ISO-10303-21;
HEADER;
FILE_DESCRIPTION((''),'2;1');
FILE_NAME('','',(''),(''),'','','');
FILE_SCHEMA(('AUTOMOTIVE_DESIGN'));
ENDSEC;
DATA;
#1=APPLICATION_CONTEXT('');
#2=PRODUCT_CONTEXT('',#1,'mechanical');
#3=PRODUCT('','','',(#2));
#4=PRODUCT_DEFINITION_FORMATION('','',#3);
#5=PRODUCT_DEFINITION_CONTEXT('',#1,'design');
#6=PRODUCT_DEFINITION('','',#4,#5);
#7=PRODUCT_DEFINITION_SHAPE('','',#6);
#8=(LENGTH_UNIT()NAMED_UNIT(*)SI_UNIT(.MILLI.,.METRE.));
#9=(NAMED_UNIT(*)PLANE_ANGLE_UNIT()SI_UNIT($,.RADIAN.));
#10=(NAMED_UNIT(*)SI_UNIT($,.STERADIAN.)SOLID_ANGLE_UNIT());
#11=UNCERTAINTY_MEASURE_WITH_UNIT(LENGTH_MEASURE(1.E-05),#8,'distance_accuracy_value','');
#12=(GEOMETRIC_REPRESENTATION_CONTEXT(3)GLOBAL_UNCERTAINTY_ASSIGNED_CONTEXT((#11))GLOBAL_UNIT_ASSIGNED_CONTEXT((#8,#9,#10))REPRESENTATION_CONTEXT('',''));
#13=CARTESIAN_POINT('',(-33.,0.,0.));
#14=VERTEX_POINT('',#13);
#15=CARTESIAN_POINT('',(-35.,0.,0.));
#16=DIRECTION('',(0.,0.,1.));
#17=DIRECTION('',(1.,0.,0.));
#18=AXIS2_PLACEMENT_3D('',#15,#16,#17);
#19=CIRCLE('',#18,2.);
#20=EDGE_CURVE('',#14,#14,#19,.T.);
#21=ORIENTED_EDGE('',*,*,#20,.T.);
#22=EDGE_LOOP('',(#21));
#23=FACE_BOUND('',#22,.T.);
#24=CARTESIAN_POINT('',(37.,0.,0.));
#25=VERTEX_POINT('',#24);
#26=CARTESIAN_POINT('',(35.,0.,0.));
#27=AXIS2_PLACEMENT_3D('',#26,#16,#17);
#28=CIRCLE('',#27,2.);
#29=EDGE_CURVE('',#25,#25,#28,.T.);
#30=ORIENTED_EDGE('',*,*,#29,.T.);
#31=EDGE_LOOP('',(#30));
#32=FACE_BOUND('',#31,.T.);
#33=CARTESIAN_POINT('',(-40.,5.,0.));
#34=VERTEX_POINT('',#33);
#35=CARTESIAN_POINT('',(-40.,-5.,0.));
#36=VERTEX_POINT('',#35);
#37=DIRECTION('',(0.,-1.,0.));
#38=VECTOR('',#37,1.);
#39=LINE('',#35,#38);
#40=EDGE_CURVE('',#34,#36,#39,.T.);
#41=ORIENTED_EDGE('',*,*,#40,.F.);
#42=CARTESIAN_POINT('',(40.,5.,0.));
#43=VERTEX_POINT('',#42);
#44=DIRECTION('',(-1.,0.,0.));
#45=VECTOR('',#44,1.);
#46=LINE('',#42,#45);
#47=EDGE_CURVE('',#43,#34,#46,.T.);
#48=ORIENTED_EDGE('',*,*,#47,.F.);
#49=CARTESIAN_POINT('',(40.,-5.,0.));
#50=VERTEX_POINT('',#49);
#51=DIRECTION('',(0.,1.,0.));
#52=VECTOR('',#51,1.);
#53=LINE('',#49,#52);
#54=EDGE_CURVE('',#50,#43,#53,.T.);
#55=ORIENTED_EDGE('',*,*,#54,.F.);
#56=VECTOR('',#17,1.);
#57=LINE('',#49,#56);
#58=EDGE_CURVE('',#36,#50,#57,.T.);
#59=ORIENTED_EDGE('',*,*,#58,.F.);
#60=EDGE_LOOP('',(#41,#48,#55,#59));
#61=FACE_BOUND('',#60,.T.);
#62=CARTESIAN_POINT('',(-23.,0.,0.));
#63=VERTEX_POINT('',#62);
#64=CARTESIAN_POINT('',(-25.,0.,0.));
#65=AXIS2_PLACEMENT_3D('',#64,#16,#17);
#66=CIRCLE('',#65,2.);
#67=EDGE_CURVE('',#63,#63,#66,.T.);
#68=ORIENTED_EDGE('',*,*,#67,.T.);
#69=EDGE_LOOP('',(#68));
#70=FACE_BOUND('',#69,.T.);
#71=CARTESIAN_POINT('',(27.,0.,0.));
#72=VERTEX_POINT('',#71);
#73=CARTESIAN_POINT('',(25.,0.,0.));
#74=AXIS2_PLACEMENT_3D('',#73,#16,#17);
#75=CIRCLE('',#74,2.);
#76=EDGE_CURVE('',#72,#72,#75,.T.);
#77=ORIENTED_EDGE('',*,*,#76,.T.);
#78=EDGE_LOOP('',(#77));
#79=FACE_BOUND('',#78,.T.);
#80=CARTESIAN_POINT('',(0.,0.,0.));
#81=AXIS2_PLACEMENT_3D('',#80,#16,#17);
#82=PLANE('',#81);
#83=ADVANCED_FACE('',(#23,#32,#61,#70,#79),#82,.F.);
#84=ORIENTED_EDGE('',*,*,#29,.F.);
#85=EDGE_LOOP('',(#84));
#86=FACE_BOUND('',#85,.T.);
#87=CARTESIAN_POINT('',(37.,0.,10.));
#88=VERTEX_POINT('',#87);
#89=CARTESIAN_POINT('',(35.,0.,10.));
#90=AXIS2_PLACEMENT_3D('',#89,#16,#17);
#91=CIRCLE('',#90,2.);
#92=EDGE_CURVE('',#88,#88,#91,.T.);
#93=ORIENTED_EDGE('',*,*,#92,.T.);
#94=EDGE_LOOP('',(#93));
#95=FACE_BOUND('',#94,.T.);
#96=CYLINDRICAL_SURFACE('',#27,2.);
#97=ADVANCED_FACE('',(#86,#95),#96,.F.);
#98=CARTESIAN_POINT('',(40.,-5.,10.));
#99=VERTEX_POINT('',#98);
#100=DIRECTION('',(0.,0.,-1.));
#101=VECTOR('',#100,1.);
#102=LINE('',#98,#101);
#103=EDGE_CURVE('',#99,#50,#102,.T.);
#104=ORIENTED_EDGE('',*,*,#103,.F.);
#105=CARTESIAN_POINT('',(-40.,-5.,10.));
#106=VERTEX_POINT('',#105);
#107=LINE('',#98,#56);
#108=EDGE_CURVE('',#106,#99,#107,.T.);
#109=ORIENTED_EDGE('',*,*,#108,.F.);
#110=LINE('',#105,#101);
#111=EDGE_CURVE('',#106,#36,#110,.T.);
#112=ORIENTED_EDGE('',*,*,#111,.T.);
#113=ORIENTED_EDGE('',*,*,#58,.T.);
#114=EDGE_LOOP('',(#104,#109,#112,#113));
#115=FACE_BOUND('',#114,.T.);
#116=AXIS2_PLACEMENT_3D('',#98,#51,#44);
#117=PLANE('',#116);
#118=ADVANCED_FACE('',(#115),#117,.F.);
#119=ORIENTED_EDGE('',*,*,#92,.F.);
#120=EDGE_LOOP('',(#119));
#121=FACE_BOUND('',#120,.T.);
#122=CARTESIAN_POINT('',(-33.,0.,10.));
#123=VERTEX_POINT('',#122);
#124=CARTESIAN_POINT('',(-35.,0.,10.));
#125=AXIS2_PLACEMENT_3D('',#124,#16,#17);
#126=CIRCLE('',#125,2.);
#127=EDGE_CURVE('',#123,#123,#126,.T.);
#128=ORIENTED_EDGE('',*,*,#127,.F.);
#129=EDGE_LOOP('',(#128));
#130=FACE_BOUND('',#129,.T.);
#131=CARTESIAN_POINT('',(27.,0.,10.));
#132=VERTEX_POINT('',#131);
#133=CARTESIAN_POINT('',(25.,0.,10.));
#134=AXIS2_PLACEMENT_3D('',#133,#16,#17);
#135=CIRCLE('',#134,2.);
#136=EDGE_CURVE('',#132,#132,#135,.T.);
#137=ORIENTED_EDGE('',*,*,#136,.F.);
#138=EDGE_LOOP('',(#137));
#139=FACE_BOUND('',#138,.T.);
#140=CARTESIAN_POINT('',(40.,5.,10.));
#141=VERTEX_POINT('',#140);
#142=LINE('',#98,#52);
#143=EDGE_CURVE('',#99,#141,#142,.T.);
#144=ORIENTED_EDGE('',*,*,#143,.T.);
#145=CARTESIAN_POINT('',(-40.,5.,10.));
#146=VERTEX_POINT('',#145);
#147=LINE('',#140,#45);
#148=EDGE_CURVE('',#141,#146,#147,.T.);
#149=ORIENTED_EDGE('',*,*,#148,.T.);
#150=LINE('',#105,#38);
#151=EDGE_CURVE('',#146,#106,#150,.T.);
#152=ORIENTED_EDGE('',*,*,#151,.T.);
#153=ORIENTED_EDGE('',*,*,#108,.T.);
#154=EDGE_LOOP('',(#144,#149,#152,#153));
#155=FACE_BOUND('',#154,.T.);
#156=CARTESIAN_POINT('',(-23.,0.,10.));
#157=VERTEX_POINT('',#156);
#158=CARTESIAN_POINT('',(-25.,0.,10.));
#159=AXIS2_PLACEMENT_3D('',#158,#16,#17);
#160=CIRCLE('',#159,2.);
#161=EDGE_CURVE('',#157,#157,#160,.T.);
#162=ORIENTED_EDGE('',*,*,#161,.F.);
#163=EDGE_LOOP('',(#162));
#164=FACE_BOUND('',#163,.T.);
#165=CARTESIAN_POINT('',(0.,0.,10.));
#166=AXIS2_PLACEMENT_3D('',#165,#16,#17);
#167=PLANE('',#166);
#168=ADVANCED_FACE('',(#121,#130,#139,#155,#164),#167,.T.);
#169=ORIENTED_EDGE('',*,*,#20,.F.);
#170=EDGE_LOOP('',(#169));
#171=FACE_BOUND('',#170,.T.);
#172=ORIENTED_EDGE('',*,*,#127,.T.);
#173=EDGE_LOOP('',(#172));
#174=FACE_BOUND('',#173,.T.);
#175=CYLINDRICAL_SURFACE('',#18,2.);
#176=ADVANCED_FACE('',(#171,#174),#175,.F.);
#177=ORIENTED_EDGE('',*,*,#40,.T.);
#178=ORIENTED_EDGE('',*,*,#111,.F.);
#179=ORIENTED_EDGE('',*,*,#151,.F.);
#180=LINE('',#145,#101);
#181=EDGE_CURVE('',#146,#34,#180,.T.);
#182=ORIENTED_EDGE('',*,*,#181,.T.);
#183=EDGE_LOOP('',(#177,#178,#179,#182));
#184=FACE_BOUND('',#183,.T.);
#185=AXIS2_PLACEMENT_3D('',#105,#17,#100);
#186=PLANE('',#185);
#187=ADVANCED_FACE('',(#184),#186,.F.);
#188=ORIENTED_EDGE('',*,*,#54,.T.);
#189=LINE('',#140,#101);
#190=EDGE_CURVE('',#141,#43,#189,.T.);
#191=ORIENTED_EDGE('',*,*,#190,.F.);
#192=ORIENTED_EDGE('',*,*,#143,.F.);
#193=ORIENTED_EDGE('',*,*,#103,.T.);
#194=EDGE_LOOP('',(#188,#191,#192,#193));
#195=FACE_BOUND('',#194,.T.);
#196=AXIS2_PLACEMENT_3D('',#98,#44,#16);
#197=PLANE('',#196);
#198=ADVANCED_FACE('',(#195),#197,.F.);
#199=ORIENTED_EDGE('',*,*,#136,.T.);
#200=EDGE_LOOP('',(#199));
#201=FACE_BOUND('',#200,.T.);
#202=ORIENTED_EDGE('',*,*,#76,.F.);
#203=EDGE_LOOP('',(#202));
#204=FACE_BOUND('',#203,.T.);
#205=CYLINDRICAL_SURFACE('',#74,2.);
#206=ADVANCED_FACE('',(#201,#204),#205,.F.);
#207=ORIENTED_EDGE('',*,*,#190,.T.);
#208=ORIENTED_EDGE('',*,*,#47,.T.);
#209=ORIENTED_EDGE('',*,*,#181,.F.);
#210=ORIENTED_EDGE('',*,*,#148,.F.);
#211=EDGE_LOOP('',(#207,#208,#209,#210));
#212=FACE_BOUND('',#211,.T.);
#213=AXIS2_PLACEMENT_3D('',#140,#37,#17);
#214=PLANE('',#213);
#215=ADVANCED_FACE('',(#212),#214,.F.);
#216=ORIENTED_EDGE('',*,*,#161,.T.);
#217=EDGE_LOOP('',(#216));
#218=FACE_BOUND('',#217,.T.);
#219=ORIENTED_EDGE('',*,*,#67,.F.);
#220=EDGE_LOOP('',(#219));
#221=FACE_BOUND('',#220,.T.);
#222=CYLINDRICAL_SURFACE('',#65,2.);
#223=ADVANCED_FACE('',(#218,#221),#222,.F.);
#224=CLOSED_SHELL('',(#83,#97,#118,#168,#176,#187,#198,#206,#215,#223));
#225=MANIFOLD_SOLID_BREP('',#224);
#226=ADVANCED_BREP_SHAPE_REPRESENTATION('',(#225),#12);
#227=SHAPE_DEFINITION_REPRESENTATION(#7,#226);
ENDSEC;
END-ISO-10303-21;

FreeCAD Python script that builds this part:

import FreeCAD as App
import Part
import Sketcher
Q = App.Units.Quantity

doc = App.newDocument("Part")
body = doc.addObject("PartDesign::Body", "Body")

sketch1 = body.newObject("Sketcher::SketchObject", "Sketch")
sketch1.AttachmentSupport = (doc.getObject("XY_Plane"), [""])
sketch1.MapMode = "FlatFace"
sketch1.addGeometry(Part.LineSegment(App.Vector(-40, 5, 0), App.Vector(-40, -5, 0)), False)
sketch1.addGeometry(Part.LineSegment(App.Vector(-40, -5, 0), App.Vector(40, -5, 0)), False)
sketch1.addGeometry(Part.LineSegment(App.Vector(40, -5, 0), App.Vector(40, 5, 0)), False)
sketch1.addGeometry(Part.LineSegment(App.Vector(40, 5, 0), App.Vector(-40, 5, 0)), False)
sketch1.addConstraint(Sketcher.Constraint("Coincident", 0, 2, 1, 1))
sketch1.addConstraint(Sketcher.Constraint("Coincident", 1, 2, 2, 1))
sketch1.addConstraint(Sketcher.Constraint("Coincident", 2, 2, 3, 1))
sketch1.addConstraint(Sketcher.Constraint("Coincident", 3, 2, 0, 1))
sketch1.addConstraint(Sketcher.Constraint("Vertical", 0))
sketch1.addConstraint(Sketcher.Constraint("Horizontal", 1))
sketch1.addConstraint(Sketcher.Constraint("Vertical", 2))
sketch1.addConstraint(Sketcher.Constraint("Horizontal", 3))
sketch1.addConstraint(Sketcher.Constraint("Symmetric", 0, 2, 2, 2, -1, 1))
sketch1.addConstraint(Sketcher.Constraint("DistanceX", 1, 1, 1, 2, Q("80 mm")))
sketch1.addConstraint(Sketcher.Constraint("DistanceY", 0, 2, 0, 1, Q("10 mm")))
pad1 = body.newObject("PartDesign::Pad", "Pad")
pad1.Profile = sketch1
pad1.Length = 10

sketch2 = body.newObject("Sketcher::SketchObject", "Sketch001")
sketch2.AttachmentSupport = (doc.getObject("XY_Plane"), [""])
sketch2.MapMode = "FlatFace"
sketch2.AttachmentOffset = App.Placement(App.Vector(0, 0, 10), App.Rotation())
sketch2.addGeometry(Part.Circle(App.Vector(-35, 0, 0), App.Vector(0, 0, 1), 2), False)
sketch2.addGeometry(Part.Circle(App.Vector(35, 0, 0), App.Vector(0, 0, 1), 2), False)
sketch2.addGeometry(Part.Circle(App.Vector(-25, 0, 0), App.Vector(0, 0, 1), 2), False)
sketch2.addGeometry(Part.Circle(App.Vector(25, 0, 0), App.Vector(0, 0, 1), 2), False)
sketch2.addConstraint(Sketcher.Constraint("Equal", 0, 1))
sketch2.addConstraint(Sketcher.Constraint("Equal", 1, 2))
sketch2.addConstraint(Sketcher.Constraint("Equal", 2, 3))
sketch2.addConstraint(Sketcher.Constraint("Symmetric", 0, 3, 1, 3, -1, 1))
sketch2.addConstraint(Sketcher.Constraint("Symmetric", 2, 3, 3, 3, -1, 1))
sketch2.addConstraint(Sketcher.Constraint("PointOnObject", 0, 3, -1))
sketch2.addConstraint(Sketcher.Constraint("PointOnObject", 2, 3, -1))
sketch2.addConstraint(Sketcher.Constraint("Diameter", 0, Q("4 mm")))
sketch2.addConstraint(Sketcher.Constraint("DistanceX", 0, 3, -1, 1, Q("35 mm")))
sketch2.addConstraint(Sketcher.Constraint("DistanceX", 2, 3, -1, 1, Q("25 mm")))
pocket1 = body.newObject("PartDesign::Pocket", "Pocket")
pocket1.Profile = sketch2
pocket1.Length = 10

doc.recompute()
